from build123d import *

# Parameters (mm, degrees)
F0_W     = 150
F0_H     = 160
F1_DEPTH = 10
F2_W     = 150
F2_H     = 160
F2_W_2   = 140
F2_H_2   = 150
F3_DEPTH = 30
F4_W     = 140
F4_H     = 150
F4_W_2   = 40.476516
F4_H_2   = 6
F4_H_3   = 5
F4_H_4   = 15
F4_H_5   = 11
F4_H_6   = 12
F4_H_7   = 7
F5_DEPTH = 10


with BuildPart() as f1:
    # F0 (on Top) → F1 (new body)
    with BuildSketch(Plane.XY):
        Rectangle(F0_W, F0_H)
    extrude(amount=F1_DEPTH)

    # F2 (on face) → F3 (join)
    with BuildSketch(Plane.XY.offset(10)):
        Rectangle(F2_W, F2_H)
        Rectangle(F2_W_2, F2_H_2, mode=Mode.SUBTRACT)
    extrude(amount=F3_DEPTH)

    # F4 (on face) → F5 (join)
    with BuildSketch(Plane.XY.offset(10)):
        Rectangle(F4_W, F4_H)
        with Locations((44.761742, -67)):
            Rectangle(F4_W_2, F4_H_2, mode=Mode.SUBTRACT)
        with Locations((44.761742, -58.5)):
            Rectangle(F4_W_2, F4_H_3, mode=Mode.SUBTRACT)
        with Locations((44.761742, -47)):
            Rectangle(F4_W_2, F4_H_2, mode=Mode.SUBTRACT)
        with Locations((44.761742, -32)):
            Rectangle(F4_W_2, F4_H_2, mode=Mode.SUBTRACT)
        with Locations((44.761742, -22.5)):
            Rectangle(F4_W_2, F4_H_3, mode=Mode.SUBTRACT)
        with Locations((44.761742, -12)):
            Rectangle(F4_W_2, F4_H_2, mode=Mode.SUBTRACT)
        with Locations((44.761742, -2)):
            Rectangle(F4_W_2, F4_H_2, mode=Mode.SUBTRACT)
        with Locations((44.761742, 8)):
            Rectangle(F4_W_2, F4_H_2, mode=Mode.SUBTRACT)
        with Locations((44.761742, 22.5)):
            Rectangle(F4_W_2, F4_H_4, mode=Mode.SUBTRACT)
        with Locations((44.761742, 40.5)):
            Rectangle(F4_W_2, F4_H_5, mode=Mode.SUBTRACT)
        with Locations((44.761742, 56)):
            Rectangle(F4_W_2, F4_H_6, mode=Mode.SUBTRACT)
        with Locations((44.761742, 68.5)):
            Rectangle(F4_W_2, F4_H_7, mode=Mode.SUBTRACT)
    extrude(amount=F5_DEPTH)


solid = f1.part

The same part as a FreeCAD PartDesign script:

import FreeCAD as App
import Part
import Sketcher
Q = App.Units.Quantity

doc = App.newDocument("Part")
body = doc.addObject("PartDesign::Body", "Body")

# Sketch on XY plane
sketch1 = body.newObject("Sketcher::SketchObject", "Sketch")
sketch1.AttachmentSupport = (doc.getObject("XY_Plane"), [""])
sketch1.MapMode = "FlatFace"
sketch1.addGeometry(Part.LineSegment(App.Vector(-75, 80, 0), App.Vector(-75, -80, 0)), False)
sketch1.addGeometry(Part.LineSegment(App.Vector(-75, -80, 0), App.Vector(75, -80, 0)), False)
sketch1.addGeometry(Part.LineSegment(App.Vector(75, -80, 0), App.Vector(75, 80, 0)), False)
sketch1.addGeometry(Part.LineSegment(App.Vector(75, 80, 0), App.Vector(-75, 80, 0)), False)
sketch1.addConstraint(Sketcher.Constraint("Coincident", 0, 2, 1, 1))
sketch1.addConstraint(Sketcher.Constraint("Coincident", 1, 2, 2, 1))
sketch1.addConstraint(Sketcher.Constraint("Coincident", 2, 2, 3, 1))
sketch1.addConstraint(Sketcher.Constraint("Coincident", 3, 2, 0, 1))
sketch1.addConstraint(Sketcher.Constraint("Vertical", 0))
sketch1.addConstraint(Sketcher.Constraint("Horizontal", 1))
sketch1.addConstraint(Sketcher.Constraint("Vertical", 2))
sketch1.addConstraint(Sketcher.Constraint("Horizontal", 3))
sketch1.addConstraint(Sketcher.Constraint("Symmetric", 0, 2, 2, 2, -1, 1))
sketch1.addConstraint(Sketcher.Constraint("DistanceX", 1, 1, 1, 2, Q("150 mm")))
sketch1.addConstraint(Sketcher.Constraint("DistanceY", 0, 2, 0, 1, Q("160 mm")))
pad1 = body.newObject("PartDesign::Pad", "Pad")
pad1.Profile = sketch1
pad1.Length = 10

# Sketch on XY plane
sketch2 = body.newObject("Sketcher::SketchObject", "Sketch001")
sketch2.AttachmentSupport = (doc.getObject("XY_Plane"), [""])
sketch2.MapMode = "FlatFace"
sketch2.AttachmentOffset = App.Placement(App.Vector(0, 0, 10), App.Rotation())
sketch2.addGeometry(Part.LineSegment(App.Vector(-75, 80, 0), App.Vector(-75, -80, 0)), False)
sketch2.addGeometry(Part.LineSegment(App.Vector(-75, -80, 0), App.Vector(75, -80, 0)), False)
sketch2.addGeometry(Part.LineSegment(App.Vector(75, -80, 0), App.Vector(75, 80, 0)), False)
sketch2.addGeometry(Part.LineSegment(App.Vector(75, 80, 0), App.Vector(-75, 80, 0)), False)
sketch2.addGeometry(Part.LineSegment(App.Vector(70, -75, 0), App.Vector(-70, -75, 0)), False)
sketch2.addGeometry(Part.LineSegment(App.Vector(-70, -75, 0), App.Vector(-70, 75, 0)), False)
sketch2.addGeometry(Part.LineSegment(App.Vector(-70, 75, 0), App.Vector(70, 75, 0)), False)
sketch2.addGeometry(Part.LineSegment(App.Vector(70, 75, 0), App.Vector(70, -75, 0)), False)
sketch2.addConstraint(Sketcher.Constraint("Coincident", 0, 2, 1, 1))
sketch2.addConstraint(Sketcher.Constraint("Coincident", 1, 2, 2, 1))
sketch2.addConstraint(Sketcher.Constraint("Coincident", 2, 2, 3, 1))
sketch2.addConstraint(Sketcher.Constraint("Coincident", 3, 2, 0, 1))
sketch2.addConstraint(Sketcher.Constraint("Coincident", 4, 2, 5, 1))
sketch2.addConstraint(Sketcher.Constraint("Coincident", 5, 2, 6, 1))
sketch2.addConstraint(Sketcher.Constraint("Coincident", 6, 2, 7, 1))
sketch2.addConstraint(Sketcher.Constraint("Coincident", 7, 2, 4, 1))
sketch2.addConstraint(Sketcher.Constraint("Vertical", 0))
sketch2.addConstraint(Sketcher.Constraint("Horizontal", 1))
sketch2.addConstraint(Sketcher.Constraint("Vertical", 2))
sketch2.addConstraint(Sketcher.Constraint("Horizontal", 3))
sketch2.addConstraint(Sketcher.Constraint("Horizontal", 4))
sketch2.addConstraint(Sketcher.Constraint("Vertical", 5))
sketch2.addConstraint(Sketcher.Constraint("Horizontal", 6))
sketch2.addConstraint(Sketcher.Constraint("Vertical", 7))
sketch2.addConstraint(Sketcher.Constraint("Symmetric", 0, 2, 2, 2, -1, 1))
sketch2.addConstraint(Sketcher.Constraint("Symmetric", 4, 2, 6, 2, -1, 1))
sketch2.addConstraint(Sketcher.Constraint("Equal", 3, 5))
sketch2.addConstraint(Sketcher.Constraint("DistanceX", 1, 1, 1, 2, Q("150 mm")))
sketch2.addConstraint(Sketcher.Constraint("DistanceX", 4, 2, 4, 1, Q("140 mm")))
sketch2.addConstraint(Sketcher.Constraint("DistanceY", 0, 2, 0, 1, Q("160 mm")))
pad2 = body.newObject("PartDesign::Pad", "Pad001")
pad2.Profile = sketch2
pad2.Length = 30

# Sketch on XY plane
sketch3 = body.newObject("Sketcher::SketchObject", "Sketch002")
sketch3.AttachmentSupport = (doc.getObject("XY_Plane"), [""])
sketch3.MapMode = "FlatFace"
sketch3.AttachmentOffset = App.Placement(App.Vector(0, 0, 10), App.Rotation())
sketch3.addGeometry(Part.LineSegment(App.Vector(-70, 75, 0), App.Vector(-70, -75, 0)), False)
sketch3.addGeometry(Part.LineSegment(App.Vector(-70, -75, 0), App.Vector(70, -75, 0)), False)
sketch3.addGeometry(Part.LineSegment(App.Vector(70, -75, 0), App.Vector(70, 75, 0)), False)
sketch3.addGeometry(Part.LineSegment(App.Vector(70, 75, 0), App.Vector(-70, 75, 0)), False)
sketch3.addGeometry(Part.LineSegment(App.Vector(65, -70, 0), App.Vector(24.523484, -70, 0)), False)
sketch3.addGeometry(Part.LineSegment(App.Vector(24.523484, -70, 0), App.Vector(24.523484, -64, 0)), False)
sketch3.addGeometry(Part.LineSegment(App.Vector(24.523484, -64, 0), App.Vector(65, -64, 0)), False)
sketch3.addGeometry(Part.LineSegment(App.Vector(65, -64, 0), App.Vector(65, -70, 0)), False)
sketch3.addGeometry(Part.LineSegment(App.Vector(65, -61, 0), App.Vector(24.523484, -61, 0)), False)
sketch3.addGeometry(Part.LineSegment(App.Vector(24.523484, -61, 0), App.Vector(24.523484, -56, 0)), False)
sketch3.addGeometry(Part.LineSegment(App.Vector(24.523484, -56, 0), App.Vector(65, -56, 0)), False)
sketch3.addGeometry(Part.LineSegment(App.Vector(65, -56, 0), App.Vector(65, -61, 0)), False)
sketch3.addGeometry(Part.LineSegment(App.Vector(65, -50, 0), App.Vector(24.523484, -50, 0)), False)
sketch3.addGeometry(Part.LineSegment(App.Vector(24.523484, -50, 0), App.Vector(24.523484, -44, 0)), False)
sketch3.addGeometry(Part.LineSegment(App.Vector(24.523484, -44, 0), App.Vector(65, -44, 0)), False)
sketch3.addGeometry(Part.LineSegment(App.Vector(65, -44, 0), App.Vector(65, -50, 0)), False)
sketch3.addGeometry(Part.LineSegment(App.Vector(65, -35, 0), App.Vector(24.523484, -35, 0)), False)
sketch3.addGeometry(Part.LineSegment(App.Vector(24.523484, -35, 0), App.Vector(24.523484, -29, 0)), False)
sketch3.addGeometry(Part.LineSegment(App.Vector(24.523484, -29, 0), App.Vector(65, -29, 0)), False)
sketch3.addGeometry(Part.LineSegment(App.Vector(65, -29, 0), App.Vector(65, -35, 0)), False)
sketch3.addGeometry(Part.LineSegment(App.Vector(65, -25, 0), App.Vector(24.523484, -25, 0)), False)
sketch3.addGeometry(Part.LineSegment(App.Vector(24.523484, -25, 0), App.Vector(24.523484, -20, 0)), False)
sketch3.addGeometry(Part.LineSegment(App.Vector(24.523484, -20, 0), App.Vector(65, -20, 0)), False)
sketch3.addGeometry(Part.LineSegment(App.Vector(65, -20, 0), App.Vector(65, -25, 0)), False)
sketch3.addGeometry(Part.LineSegment(App.Vector(65, -15, 0), App.Vector(24.523484, -15, 0)), False)
sketch3.addGeometry(Part.LineSegment(App.Vector(24.523484, -15, 0), App.Vector(24.523484, -9, 0)), False)
sketch3.addGeometry(Part.LineSegment(App.Vector(24.523484, -9, 0), App.Vector(65, -9, 0)), False)
sketch3.addGeometry(Part.LineSegment(App.Vector(65, -9, 0), App.Vector(65, -15, 0)), False)
sketch3.addGeometry(Part.LineSegment(App.Vector(65, -5, 0), App.Vector(24.523484, -5, 0)), False)
sketch3.addGeometry(Part.LineSegment(App.Vector(24.523484, -5, 0), App.Vector(24.523484, 1, 0)), False)
sketch3.addGeometry(Part.LineSegment(App.Vector(24.523484, 1, 0), App.Vector(65, 1, 0)), False)
sketch3.addGeometry(Part.LineSegment(App.Vector(65, 1, 0), App.Vector(65, -5, 0)), False)
sketch3.addGeometry(Part.LineSegment(App.Vector(65, 5, 0), App.Vector(24.523484, 5, 0)), False)
sketch3.addGeometry(Part.LineSegment(App.Vector(24.523484, 5, 0), App.Vector(24.523484, 11, 0)), False)
sketch3.addGeometry(Part.LineSegment(App.Vector(24.523484, 11, 0), App.Vector(65, 11, 0)), False)
sketch3.addGeometry(Part.LineSegment(App.Vector(65, 11, 0), App.Vector(65, 5, 0)), False)
sketch3.addGeometry(Part.LineSegment(App.Vector(65, 15, 0), App.Vector(24.523484, 15, 0)), False)
sketch3.addGeometry(Part.LineSegment(App.Vector(24.523484, 15, 0), App.Vector(24.523484, 30, 0)), False)
sketch3.addGeometry(Part.LineSegment(App.Vector(24.523484, 30, 0), App.Vector(65, 30, 0)), False)
sketch3.addGeometry(Part.LineSegment(App.Vector(65, 30, 0), App.Vector(65, 15, 0)), False)
sketch3.addGeometry(Part.LineSegment(App.Vector(65, 35, 0), App.Vector(24.523484, 35, 0)), False)
sketch3.addGeometry(Part.LineSegment(App.Vector(24.523484, 35, 0), App.Vector(24.523484, 46, 0)), False)
sketch3.addGeometry(Part.LineSegment(App.Vector(24.523484, 46, 0), App.Vector(65, 46, 0)), False)
sketch3.addGeometry(Part.LineSegment(App.Vector(65, 46, 0), App.Vector(65, 35, 0)), False)
sketch3.addGeometry(Part.LineSegment(App.Vector(65, 50, 0), App.Vector(24.523484, 50, 0)), False)
sketch3.addGeometry(Part.LineSegment(App.Vector(24.523484, 50, 0), App.Vector(24.523484, 62, 0)), False)
sketch3.addGeometry(Part.LineSegment(App.Vector(24.523484, 62, 0), App.Vector(65, 62, 0)), False)
sketch3.addGeometry(Part.LineSegment(App.Vector(65, 62, 0), App.Vector(65, 50, 0)), False)
sketch3.addGeometry(Part.LineSegment(App.Vector(65, 65, 0), App.Vector(24.523484, 65, 0)), False)
sketch3.addGeometry(Part.LineSegment(App.Vector(24.523484, 65, 0), App.Vector(24.523484, 72, 0)), False)
sketch3.addGeometry(Part.LineSegment(App.Vector(24.523484, 72, 0), App.Vector(65, 72, 0)), False)
sketch3.addGeometry(Part.LineSegment(App.Vector(65, 72, 0), App.Vector(65, 65, 0)), False)
sketch3.addConstraint(Sketcher.Constraint("Coincident", 0, 2, 1, 1))
sketch3.addConstraint(Sketcher.Constraint("Coincident", 1, 2, 2, 1))
sketch3.addConstraint(Sketcher.Constraint("Coincident", 2, 2, 3, 1))
sketch3.addConstraint(Sketcher.Constraint("Coincident", 3, 2, 0, 1))
sketch3.addConstraint(Sketcher.Constraint("Coincident", 4, 2, 5, 1))
sketch3.addConstraint(Sketcher.Constraint("Coincident", 5, 2, 6, 1))
sketch3.addConstraint(Sketcher.Constraint("Coincident", 6, 2, 7, 1))
sketch3.addConstraint(Sketcher.Constraint("Coincident", 7, 2, 4, 1))
sketch3.addConstraint(Sketcher.Constraint("Coincident", 8, 2, 9, 1))
sketch3.addConstraint(Sketcher.Constraint("Coincident", 9, 2, 10, 1))
sketch3.addConstraint(Sketcher.Constraint("Coincident", 10, 2, 11, 1))
sketch3.addConstraint(Sketcher.Constraint("Coincident", 11, 2, 8, 1))
sketch3.addConstraint(Sketcher.Constraint("Coincident", 12, 2, 13, 1))
sketch3.addConstraint(Sketcher.Constraint("Coincident", 13, 2, 14, 1))
sketch3.addConstraint(Sketcher.Constraint("Coincident", 14, 2, 15, 1))
sketch3.addConstraint(Sketcher.Constraint("Coincident", 15, 2, 12, 1))
sketch3.addConstraint(Sketcher.Constraint("Coincident", 16, 2, 17, 1))
sketch3.addConstraint(Sketcher.Constraint("Coincident", 17, 2, 18, 1))
sketch3.addConstraint(Sketcher.Constraint("Coincident", 18, 2, 19, 1))
sketch3.addConstraint(Sketcher.Constraint("Coincident", 19, 2, 16, 1))
sketch3.addConstraint(Sketcher.Constraint("Coincident", 20, 2, 21, 1))
sketch3.addConstraint(Sketcher.Constraint("Coincident", 21, 2, 22, 1))
sketch3.addConstraint(Sketcher.Constraint("Coincident", 22, 2, 23, 1))
sketch3.addConstraint(Sketcher.Constraint("Coincident", 23, 2, 20, 1))
sketch3.addConstraint(Sketcher.Constraint("Coincident", 24, 2, 25, 1))
sketch3.addConstraint(Sketcher.Constraint("Coincident", 25, 2, 26, 1))
sketch3.addConstraint(Sketcher.Constraint("Coincident", 26, 2, 27, 1))
sketch3.addConstraint(Sketcher.Constraint("Coincident", 27, 2, 24, 1))
sketch3.addConstraint(Sketcher.Constraint("Coincident", 28, 2, 29, 1))
sketch3.addConstraint(Sketcher.Constraint("Coincident", 29, 2, 30, 1))
sketch3.addConstraint(Sketcher.Constraint("Coincident", 30, 2, 31, 1))
sketch3.addConstraint(Sketcher.Constraint("Coincident", 31, 2, 28, 1))
sketch3.addConstraint(Sketcher.Constraint("Coincident", 32, 2, 33, 1))
sketch3.addConstraint(Sketcher.Constraint("Coincident", 33, 2, 34, 1))
sketch3.addConstraint(Sketcher.Constraint("Coincident", 34, 2, 35, 1))
sketch3.addConstraint(Sketcher.Constraint("Coincident", 35, 2, 32, 1))
sketch3.addConstraint(Sketcher.Constraint("Coincident", 36, 2, 37, 1))
sketch3.addConstraint(Sketcher.Constraint("Coincident", 37, 2, 38, 1))
sketch3.addConstraint(Sketcher.Constraint("Coincident", 38, 2, 39, 1))
sketch3.addConstraint(Sketcher.Constraint("Coincident", 39, 2, 36, 1))
sketch3.addConstraint(Sketcher.Constraint("Coincident", 40, 2, 41, 1))
sketch3.addConstraint(Sketcher.Constraint("Coincident", 41, 2, 42, 1))
sketch3.addConstraint(Sketcher.Constraint("Coincident", 42, 2, 43, 1))
sketch3.addConstraint(Sketcher.Constraint("Coincident", 43, 2, 40, 1))
sketch3.addConstraint(Sketcher.Constraint("Coincident", 44, 2, 45, 1))
sketch3.addConstraint(Sketcher.Constraint("Coincident", 45, 2, 46, 1))
sketch3.addConstraint(Sketcher.Constraint("Coincident", 46, 2, 47, 1))
sketch3.addConstraint(Sketcher.Constraint("Coincident", 47, 2, 44, 1))
sketch3.addConstraint(Sketcher.Constraint("Coincident", 48, 2, 49, 1))
sketch3.addConstraint(Sketcher.Constraint("Coincident", 49, 2, 50, 1))
sketch3.addConstraint(Sketcher.Constraint("Coincident", 50, 2, 51, 1))
sketch3.addConstraint(Sketcher.Constraint("Coincident", 51, 2, 48, 1))
sketch3.addConstraint(Sketcher.Constraint("Vertical", 0))
sketch3.addConstraint(Sketcher.Constraint("Horizontal", 1))
sketch3.addConstraint(Sketcher.Constraint("Vertical", 2))
sketch3.addConstraint(Sketcher.Constraint("Horizontal", 3))
sketch3.addConstraint(Sketcher.Constraint("Horizontal", 4))
sketch3.addConstraint(Sketcher.Constraint("Vertical", 5))
sketch3.addConstraint(Sketcher.Constraint("Horizontal", 6))
sketch3.addConstraint(Sketcher.Constraint("Vertical", 7))
sketch3.addConstraint(Sketcher.Constraint("Horizontal", 8))
sketch3.addConstraint(Sketcher.Constraint("Vertical", 9))
sketch3.addConstraint(Sketcher.Constraint("Horizontal", 10))
sketch3.addConstraint(Sketcher.Constraint("Vertical", 11))
sketch3.addConstraint(Sketcher.Constraint("Horizontal", 12))
sketch3.addConstraint(Sketcher.Constraint("Vertical", 13))
sketch3.addConstraint(Sketcher.Constraint("Horizontal", 14))
sketch3.addConstraint(Sketcher.Constraint("Vertical", 15))
sketch3.addConstraint(Sketcher.Constraint("Horizontal", 16))
sketch3.addConstraint(Sketcher.Constraint("Vertical", 17))
sketch3.addConstraint(Sketcher.Constraint("Horizontal", 18))
sketch3.addConstraint(Sketcher.Constraint("Vertical", 19))
sketch3.addConstraint(Sketcher.Constraint("Horizontal", 20))
sketch3.addConstraint(Sketcher.Constraint("Vertical", 21))
sketch3.addConstraint(Sketcher.Constraint("Horizontal", 22))
sketch3.addConstraint(Sketcher.Constraint("Vertical", 23))
sketch3.addConstraint(Sketcher.Constraint("Horizontal", 24))
sketch3.addConstraint(Sketcher.Constraint("Vertical", 25))
sketch3.addConstraint(Sketcher.Constraint("Horizontal", 26))
sketch3.addConstraint(Sketcher.Constraint("Vertical", 27))
sketch3.addConstraint(Sketcher.Constraint("Horizontal", 28))
sketch3.addConstraint(Sketcher.Constraint("Vertical", 29))
sketch3.addConstraint(Sketcher.Constraint("Horizontal", 30))
sketch3.addConstraint(Sketcher.Constraint("Vertical", 31))
sketch3.addConstraint(Sketcher.Constraint("Horizontal", 32))
sketch3.addConstraint(Sketcher.Constraint("Vertical", 33))
sketch3.addConstraint(Sketcher.Constraint("Horizontal", 34))
sketch3.addConstraint(Sketcher.Constraint("Vertical", 35))
sketch3.addConstraint(Sketcher.Constraint("Horizontal", 36))
sketch3.addConstraint(Sketcher.Constraint("Vertical", 37))
sketch3.addConstraint(Sketcher.Constraint("Horizontal", 38))
sketch3.addConstraint(Sketcher.Constraint("Vertical", 39))
sketch3.addConstraint(Sketcher.Constraint("Horizontal", 40))
sketch3.addConstraint(Sketcher.Constraint("Vertical", 41))
sketch3.addConstraint(Sketcher.Constraint("Horizontal", 42))
sketch3.addConstraint(Sketcher.Constraint("Vertical", 43))
sketch3.addConstraint(Sketcher.Constraint("Horizontal", 44))
sketch3.addConstraint(Sketcher.Constraint("Vertical", 45))
sketch3.addConstraint(Sketcher.Constraint("Horizontal", 46))
sketch3.addConstraint(Sketcher.Constraint("Vertical", 47))
sketch3.addConstraint(Sketcher.Constraint("Horizontal", 48))
sketch3.addConstraint(Sketcher.Constraint("Vertical", 49))
sketch3.addConstraint(Sketcher.Constraint("Horizontal", 50))
sketch3.addConstraint(Sketcher.Constraint("Vertical", 51))
sketch3.addConstraint(Sketcher.Constraint("Symmetric", 0, 2, 2, 2, -1, 1))
sketch3.addConstraint(Sketcher.Constraint("Symmetric", 28, 2, 32, 2, -1))
sketch3.addConstraint(Sketcher.Constraint("Symmetric", 24, 2, 36, 2, -1))
sketch3.addConstraint(Sketcher.Constraint("Symmetric", 16, 2, 40, 2, -1))
sketch3.addConstraint(Sketcher.Constraint("Symmetric", 12, 2, 44, 2, -1))
sketch3.addConstraint(Sketcher.Constraint("Vertical", 5, 2, 8, 2))
sketch3.addConstraint(Sketcher.Constraint("Vertical", 7, 2, 10, 2))
sketch3.addConstraint(Sketcher.Constraint("Vertical", 9, 2, 12, 2))
sketch3.addConstraint(Sketcher.Constraint("Vertical", 11, 2, 14, 2))
sketch3.addConstraint(Sketcher.Constraint("Vertical", 13, 2, 16, 2))
sketch3.addConstraint(Sketcher.Constraint("Vertical", 15, 2, 18, 2))
sketch3.addConstraint(Sketcher.Constraint("Vertical", 17, 2, 20, 2))
sketch3.addConstraint(Sketcher.Constraint("Vertical", 19, 2, 22, 2))
sketch3.addConstraint(Sketcher.Constraint("Vertical", 21, 2, 24, 2))
sketch3.addConstraint(Sketcher.Constraint("Vertical", 23, 2, 26, 2))
sketch3.addConstraint(Sketcher.Constraint("Vertical", 25, 2, 28, 2))
sketch3.addConstraint(Sketcher.Constraint("Vertical", 27, 2, 30, 2))
sketch3.addConstraint(Sketcher.Constraint("Vertical", 31, 2, 34, 2))
sketch3.addConstraint(Sketcher.Constraint("Vertical", 35, 2, 38, 2))
sketch3.addConstraint(Sketcher.Constraint("Vertical", 39, 2, 42, 2))
sketch3.addConstraint(Sketcher.Constraint("Vertical", 43, 2, 46, 2))
sketch3.addConstraint(Sketcher.Constraint("Vertical", 45, 2, 48, 2))
sketch3.addConstraint(Sketcher.Constraint("Vertical", 47, 2, 50, 2))
sketch3.addConstraint(Sketcher.Constraint("Equal", 7, 13))
sketch3.addConstraint(Sketcher.Constraint("Equal", 15, 17))
sketch3.addConstraint(Sketcher.Constraint("Equal", 11, 21))
sketch3.addConstraint(Sketcher.Constraint("Equal", 19, 25))
sketch3.addConstraint(Sketcher.Constraint("Equal", 27, 29))
sketch3.addConstraint(Sketcher.Constraint("Equal", 31, 33))
sketch3.addConstraint(Sketcher.Constraint("DistanceX", 1, 1, 1, 2, Q("140 mm")))
sketch3.addConstraint(Sketcher.Constraint("DistanceY", 0, 2, 0, 1, Q("150 mm")))
sketch3.addConstraint(Sketcher.Constraint("DistanceY", 5, 1, 5, 2, Q("6 mm")))
sketch3.addConstraint(Sketcher.Constraint("DistanceY", 9, 1, 9, 2, Q("5 mm")))
sketch3.addConstraint(Sketcher.Constraint("DistanceY", 37, 1, 37, 2, Q("15 mm")))
sketch3.addConstraint(Sketcher.Constraint("DistanceY", 41, 1, 41, 2, Q("11 mm")))
sketch3.addConstraint(Sketcher.Constraint("DistanceY", 45, 1, 45, 2, Q("12 mm")))
sketch3.addConstraint(Sketcher.Constraint("DistanceY", 49, 1, 49, 2, Q("7 mm")))
sketch3.addConstraint(Sketcher.Constraint("DistanceY", 4, 2, -1, 1, Q("70 mm")))
sketch3.addConstraint(Sketcher.Constraint("DistanceX", -1, 1, 6, 2, Q("65 mm")))
sketch3.addConstraint(Sketcher.Constraint("DistanceY", 8, 2, -1, 1, Q("61 mm")))
sketch3.addConstraint(Sketcher.Constraint("DistanceY", 12, 2, -1, 1, Q("50 mm")))
sketch3.addConstraint(Sketcher.Constraint("DistanceY", 16, 2, -1, 1, Q("35 mm")))
sketch3.addConstraint(Sketcher.Constraint("DistanceY", 20, 2, -1, 1, Q("25 mm")))
sketch3.addConstraint(Sketcher.Constraint("DistanceY", 24, 2, -1, 1, Q("15 mm")))
sketch3.addConstraint(Sketcher.Constraint("DistanceY", 28, 2, -1, 1, Q("5 mm")))
sketch3.addConstraint(Sketcher.Constraint("DistanceY", -1, 1, 48, 2, Q("65 mm")))
sketch3.addConstraint(Sketcher.Constraint("DistanceX", 4, 2, 4, 1, Q("40.476516 mm")))
pad3 = body.newObject("PartDesign::Pad", "Pad002")
pad3.Profile = sketch3
pad3.Length = 10

doc.recompute()
